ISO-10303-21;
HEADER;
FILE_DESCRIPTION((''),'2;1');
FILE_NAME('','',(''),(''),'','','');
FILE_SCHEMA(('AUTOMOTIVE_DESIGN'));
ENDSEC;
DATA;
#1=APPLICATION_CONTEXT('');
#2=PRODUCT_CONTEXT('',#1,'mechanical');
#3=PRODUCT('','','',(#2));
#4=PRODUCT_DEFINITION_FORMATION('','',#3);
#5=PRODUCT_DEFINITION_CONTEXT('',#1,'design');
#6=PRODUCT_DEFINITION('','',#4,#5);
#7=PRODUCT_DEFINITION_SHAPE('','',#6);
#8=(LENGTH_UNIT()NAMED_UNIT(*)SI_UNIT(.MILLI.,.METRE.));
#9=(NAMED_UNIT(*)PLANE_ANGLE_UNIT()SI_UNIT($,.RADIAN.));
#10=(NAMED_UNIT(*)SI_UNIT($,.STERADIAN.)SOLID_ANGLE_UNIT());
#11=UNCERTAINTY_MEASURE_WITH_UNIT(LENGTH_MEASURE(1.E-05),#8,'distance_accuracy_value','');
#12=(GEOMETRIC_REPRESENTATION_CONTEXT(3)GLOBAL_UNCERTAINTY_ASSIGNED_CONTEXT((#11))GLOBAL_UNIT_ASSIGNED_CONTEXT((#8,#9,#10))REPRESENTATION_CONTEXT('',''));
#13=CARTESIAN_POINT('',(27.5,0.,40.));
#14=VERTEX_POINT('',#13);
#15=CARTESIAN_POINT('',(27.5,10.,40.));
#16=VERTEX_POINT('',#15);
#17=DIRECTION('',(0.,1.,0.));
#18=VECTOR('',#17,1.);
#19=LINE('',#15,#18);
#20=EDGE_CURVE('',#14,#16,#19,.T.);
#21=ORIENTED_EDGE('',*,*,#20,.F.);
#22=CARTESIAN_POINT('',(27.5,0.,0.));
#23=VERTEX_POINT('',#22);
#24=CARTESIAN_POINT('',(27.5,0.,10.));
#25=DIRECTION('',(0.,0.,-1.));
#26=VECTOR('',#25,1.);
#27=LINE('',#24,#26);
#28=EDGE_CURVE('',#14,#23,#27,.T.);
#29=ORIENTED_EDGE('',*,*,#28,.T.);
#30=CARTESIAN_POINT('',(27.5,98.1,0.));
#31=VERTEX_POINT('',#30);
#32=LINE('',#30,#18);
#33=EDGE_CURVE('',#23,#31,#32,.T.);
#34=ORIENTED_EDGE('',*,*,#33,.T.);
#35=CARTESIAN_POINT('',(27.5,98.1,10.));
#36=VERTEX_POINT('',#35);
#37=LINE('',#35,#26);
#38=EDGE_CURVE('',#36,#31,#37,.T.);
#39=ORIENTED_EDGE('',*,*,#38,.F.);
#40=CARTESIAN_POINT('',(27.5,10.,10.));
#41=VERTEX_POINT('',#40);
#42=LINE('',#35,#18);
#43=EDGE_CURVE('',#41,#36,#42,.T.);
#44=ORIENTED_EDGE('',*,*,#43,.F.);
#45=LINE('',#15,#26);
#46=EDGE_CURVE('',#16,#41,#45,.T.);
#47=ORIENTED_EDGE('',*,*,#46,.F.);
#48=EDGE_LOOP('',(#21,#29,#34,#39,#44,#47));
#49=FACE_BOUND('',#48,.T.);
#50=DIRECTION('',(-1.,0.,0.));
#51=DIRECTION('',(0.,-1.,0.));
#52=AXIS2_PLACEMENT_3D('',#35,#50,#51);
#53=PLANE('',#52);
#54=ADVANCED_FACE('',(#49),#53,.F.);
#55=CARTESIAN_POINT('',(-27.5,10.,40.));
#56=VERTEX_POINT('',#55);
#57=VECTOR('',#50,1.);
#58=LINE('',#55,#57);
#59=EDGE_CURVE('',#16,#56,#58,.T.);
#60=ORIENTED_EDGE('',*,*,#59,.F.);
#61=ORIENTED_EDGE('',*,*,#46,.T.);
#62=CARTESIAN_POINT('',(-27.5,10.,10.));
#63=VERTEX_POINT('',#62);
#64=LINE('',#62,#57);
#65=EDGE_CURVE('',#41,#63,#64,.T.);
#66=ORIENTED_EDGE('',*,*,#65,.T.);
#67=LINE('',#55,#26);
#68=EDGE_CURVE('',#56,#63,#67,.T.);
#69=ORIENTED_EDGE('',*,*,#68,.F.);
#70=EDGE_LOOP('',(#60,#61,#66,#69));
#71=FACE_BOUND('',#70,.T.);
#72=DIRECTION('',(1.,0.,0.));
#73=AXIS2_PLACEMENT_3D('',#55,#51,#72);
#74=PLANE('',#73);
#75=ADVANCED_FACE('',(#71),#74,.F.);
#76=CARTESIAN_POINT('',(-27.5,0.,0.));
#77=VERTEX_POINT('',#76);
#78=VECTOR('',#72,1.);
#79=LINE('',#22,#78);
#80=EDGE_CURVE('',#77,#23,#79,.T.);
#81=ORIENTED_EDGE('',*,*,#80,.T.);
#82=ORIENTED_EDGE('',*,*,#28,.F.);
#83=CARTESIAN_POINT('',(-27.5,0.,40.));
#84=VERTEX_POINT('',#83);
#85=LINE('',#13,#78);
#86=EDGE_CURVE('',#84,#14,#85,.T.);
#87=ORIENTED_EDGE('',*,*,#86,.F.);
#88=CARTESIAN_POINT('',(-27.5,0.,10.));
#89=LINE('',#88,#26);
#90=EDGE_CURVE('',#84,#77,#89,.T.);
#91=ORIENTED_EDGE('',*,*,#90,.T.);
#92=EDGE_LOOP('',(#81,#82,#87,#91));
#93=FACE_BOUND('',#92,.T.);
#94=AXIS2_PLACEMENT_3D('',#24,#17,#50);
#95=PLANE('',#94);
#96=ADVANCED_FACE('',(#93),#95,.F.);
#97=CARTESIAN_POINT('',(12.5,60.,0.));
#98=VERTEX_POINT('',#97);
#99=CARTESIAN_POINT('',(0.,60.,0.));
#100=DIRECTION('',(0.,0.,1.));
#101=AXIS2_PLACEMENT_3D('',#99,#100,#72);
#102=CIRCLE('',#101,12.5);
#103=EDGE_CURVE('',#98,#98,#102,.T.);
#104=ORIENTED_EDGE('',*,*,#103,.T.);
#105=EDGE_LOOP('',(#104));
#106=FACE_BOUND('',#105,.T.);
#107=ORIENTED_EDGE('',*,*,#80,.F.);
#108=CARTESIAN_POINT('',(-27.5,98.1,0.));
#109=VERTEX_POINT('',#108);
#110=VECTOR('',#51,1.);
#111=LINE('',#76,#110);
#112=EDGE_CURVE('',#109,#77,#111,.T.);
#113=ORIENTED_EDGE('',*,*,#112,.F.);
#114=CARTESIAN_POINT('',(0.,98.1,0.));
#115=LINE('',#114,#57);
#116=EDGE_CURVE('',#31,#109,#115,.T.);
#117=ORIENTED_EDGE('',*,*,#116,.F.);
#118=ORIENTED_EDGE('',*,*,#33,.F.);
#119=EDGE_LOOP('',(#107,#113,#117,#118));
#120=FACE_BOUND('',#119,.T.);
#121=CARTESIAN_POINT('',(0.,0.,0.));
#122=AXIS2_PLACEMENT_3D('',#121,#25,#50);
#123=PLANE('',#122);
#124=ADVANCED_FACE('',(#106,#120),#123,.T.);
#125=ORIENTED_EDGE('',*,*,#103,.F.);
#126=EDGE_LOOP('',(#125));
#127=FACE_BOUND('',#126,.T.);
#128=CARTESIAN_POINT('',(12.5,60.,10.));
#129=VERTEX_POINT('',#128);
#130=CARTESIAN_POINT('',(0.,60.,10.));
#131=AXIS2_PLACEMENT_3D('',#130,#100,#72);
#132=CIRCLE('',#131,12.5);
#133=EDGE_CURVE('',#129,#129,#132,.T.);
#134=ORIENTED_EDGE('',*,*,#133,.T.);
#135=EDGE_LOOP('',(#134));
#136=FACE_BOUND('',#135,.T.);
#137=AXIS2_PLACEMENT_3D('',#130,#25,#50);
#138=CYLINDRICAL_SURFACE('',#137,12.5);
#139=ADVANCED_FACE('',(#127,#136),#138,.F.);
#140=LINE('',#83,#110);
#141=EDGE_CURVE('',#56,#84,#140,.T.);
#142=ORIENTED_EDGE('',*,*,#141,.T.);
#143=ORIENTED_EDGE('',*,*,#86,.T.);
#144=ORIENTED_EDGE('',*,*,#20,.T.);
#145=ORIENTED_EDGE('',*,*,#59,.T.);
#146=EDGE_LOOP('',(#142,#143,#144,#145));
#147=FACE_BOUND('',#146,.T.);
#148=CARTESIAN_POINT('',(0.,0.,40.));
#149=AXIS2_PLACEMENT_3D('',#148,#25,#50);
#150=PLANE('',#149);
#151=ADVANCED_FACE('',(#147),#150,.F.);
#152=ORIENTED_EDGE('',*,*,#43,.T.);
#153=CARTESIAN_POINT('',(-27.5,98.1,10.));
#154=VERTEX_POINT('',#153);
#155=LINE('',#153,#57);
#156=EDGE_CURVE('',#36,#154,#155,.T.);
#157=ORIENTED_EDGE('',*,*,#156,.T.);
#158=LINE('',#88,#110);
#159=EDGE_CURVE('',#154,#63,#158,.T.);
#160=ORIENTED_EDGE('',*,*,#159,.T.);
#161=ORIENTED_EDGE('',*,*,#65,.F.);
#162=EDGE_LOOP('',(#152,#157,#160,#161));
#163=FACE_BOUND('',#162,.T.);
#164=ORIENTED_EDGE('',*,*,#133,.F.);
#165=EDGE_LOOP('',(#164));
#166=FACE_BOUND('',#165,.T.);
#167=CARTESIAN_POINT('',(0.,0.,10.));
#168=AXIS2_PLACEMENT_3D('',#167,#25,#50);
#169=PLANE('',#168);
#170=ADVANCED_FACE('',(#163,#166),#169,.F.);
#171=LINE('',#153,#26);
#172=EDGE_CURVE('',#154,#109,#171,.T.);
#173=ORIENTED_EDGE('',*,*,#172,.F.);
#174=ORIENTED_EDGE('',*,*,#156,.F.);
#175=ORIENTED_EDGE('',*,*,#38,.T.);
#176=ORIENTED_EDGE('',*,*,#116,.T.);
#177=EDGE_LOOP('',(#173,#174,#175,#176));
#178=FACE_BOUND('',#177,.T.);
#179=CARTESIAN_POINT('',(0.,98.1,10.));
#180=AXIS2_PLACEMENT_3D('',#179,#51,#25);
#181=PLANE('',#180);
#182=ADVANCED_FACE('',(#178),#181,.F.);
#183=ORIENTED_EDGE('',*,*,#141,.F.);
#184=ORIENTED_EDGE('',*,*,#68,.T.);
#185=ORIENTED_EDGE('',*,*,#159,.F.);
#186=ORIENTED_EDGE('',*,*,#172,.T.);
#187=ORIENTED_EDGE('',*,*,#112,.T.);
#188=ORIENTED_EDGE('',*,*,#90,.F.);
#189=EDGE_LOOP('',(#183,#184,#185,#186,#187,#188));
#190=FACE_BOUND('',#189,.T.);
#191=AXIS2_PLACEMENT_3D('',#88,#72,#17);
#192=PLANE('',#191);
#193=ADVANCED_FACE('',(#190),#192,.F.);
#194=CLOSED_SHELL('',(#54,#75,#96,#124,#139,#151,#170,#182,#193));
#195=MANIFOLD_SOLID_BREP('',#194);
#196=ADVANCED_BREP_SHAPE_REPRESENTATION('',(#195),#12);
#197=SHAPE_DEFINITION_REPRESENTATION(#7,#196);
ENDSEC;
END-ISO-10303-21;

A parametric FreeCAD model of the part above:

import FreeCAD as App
import Part
import Sketcher


def add_polygon(sketch, points):
    """Adds a closed chain of lines whose ends are joined by coincident constraints."""
    first, n = sketch.GeometryCount, len(points)
    for a, b in zip(points, points[1:] + points[:1]):
        sketch.addGeometry(Part.LineSegment(App.Vector(*a, 0), App.Vector(*b, 0)), False)
    for i in range(n):
        sketch.addConstraint(Sketcher.Constraint("Coincident", first + i, 2, first + (i + 1) % n, 1))

doc = App.newDocument("Part")
params = doc.addObject("Spreadsheet::Sheet", "Params")
for row, (alias, value) in enumerate([
    ("sketch1_diameter", "25 mm"),
    ("sketch1_width", "55 mm"),
    ("sketch1_height", "98.1 mm"),
    ("pad1_length", "10 mm"),
    ("sketch2_width", "55 mm"),
    ("sketch2_height", "10 mm"),
    ("pad2_length", "30 mm"),
], start=1):
    params.set(f"A{row}", alias)
    params.set(f"B{row}", "=" + value)
    params.setAlias(f"B{row}", alias)

body = doc.addObject("PartDesign::Body", "Body")

sketch1 = body.newObject("Sketcher::SketchObject", "Sketch")
sketch1.AttachmentSupport = (doc.getObject("XY_Plane"), [""])
sketch1.MapMode = "FlatFace"
add_polygon(sketch1, [(28, 98), (-28, 98), (-28, 0), (28, 0)])
sketch1.addGeometry(Part.Circle(App.Vector(0, 60, 0), App.Vector(0, 0, 1), 12), False)
sketch1.addConstraint([
    Sketcher.Constraint("Horizontal", 0),
    Sketcher.Constraint("Vertical", 1),
    Sketcher.Constraint("Horizontal", 2),
    Sketcher.Constraint("Vertical", 3),
    Sketcher.Constraint("Symmetric", 1, 2, 2, 2, -1, 1),
    Sketcher.Constraint("PointOnObject", 4, 3, -2),
    Sketcher.Constraint("Diameter", 4, 25.0),
    Sketcher.Constraint("DistanceX", 0, 2, 0, 1, 55.0),
    Sketcher.Constraint("DistanceY", 1, 2, 1, 1, 98.1),
    Sketcher.Constraint("DistanceY", -1, 1, 4, 3, 60.0),
])
sketch1.setExpression("Constraints[10]", "Params.sketch1_diameter")
sketch1.setExpression("Constraints[11]", "Params.sketch1_width")
sketch1.setExpression("Constraints[12]", "Params.sketch1_height")
pad1 = body.newObject("PartDesign::Pad", "Pad")
pad1.Profile = sketch1
pad1.setExpression("Length", "Params.pad1_length")

sketch2 = body.newObject("Sketcher::SketchObject", "Sketch001")
sketch2.AttachmentSupport = (doc.getObject("XY_Plane"), [""])
sketch2.MapMode = "FlatFace"
sketch2.AttachmentOffset = App.Placement(App.Vector(0, 0, 10), App.Rotation())
add_polygon(sketch2, [(-28, 10), (-28, 0), (28, 0), (28, 10)])
sketch2.addConstraint([
    Sketcher.Constraint("Vertical", 0),
    Sketcher.Constraint("Horizontal", 1),
    Sketcher.Constraint("Vertical", 2),
    Sketcher.Constraint("Horizontal", 3),
    Sketcher.Constraint("Symmetric", 0, 2, 1, 2, -1, 1),
    Sketcher.Constraint("DistanceX", 1, 1, 1, 2, 55.0),
    Sketcher.Constraint("DistanceY", 0, 2, 0, 1, 10.0),
])
sketch2.setExpression("Constraints[9]", "Params.sketch2_width")
sketch2.setExpression("Constraints[10]", "Params.sketch2_height")
pad2 = body.newObject("PartDesign::Pad", "Pad001")
pad2.Profile = sketch2
pad2.setExpression("Length", "Params.pad2_length")

doc.recompute()
